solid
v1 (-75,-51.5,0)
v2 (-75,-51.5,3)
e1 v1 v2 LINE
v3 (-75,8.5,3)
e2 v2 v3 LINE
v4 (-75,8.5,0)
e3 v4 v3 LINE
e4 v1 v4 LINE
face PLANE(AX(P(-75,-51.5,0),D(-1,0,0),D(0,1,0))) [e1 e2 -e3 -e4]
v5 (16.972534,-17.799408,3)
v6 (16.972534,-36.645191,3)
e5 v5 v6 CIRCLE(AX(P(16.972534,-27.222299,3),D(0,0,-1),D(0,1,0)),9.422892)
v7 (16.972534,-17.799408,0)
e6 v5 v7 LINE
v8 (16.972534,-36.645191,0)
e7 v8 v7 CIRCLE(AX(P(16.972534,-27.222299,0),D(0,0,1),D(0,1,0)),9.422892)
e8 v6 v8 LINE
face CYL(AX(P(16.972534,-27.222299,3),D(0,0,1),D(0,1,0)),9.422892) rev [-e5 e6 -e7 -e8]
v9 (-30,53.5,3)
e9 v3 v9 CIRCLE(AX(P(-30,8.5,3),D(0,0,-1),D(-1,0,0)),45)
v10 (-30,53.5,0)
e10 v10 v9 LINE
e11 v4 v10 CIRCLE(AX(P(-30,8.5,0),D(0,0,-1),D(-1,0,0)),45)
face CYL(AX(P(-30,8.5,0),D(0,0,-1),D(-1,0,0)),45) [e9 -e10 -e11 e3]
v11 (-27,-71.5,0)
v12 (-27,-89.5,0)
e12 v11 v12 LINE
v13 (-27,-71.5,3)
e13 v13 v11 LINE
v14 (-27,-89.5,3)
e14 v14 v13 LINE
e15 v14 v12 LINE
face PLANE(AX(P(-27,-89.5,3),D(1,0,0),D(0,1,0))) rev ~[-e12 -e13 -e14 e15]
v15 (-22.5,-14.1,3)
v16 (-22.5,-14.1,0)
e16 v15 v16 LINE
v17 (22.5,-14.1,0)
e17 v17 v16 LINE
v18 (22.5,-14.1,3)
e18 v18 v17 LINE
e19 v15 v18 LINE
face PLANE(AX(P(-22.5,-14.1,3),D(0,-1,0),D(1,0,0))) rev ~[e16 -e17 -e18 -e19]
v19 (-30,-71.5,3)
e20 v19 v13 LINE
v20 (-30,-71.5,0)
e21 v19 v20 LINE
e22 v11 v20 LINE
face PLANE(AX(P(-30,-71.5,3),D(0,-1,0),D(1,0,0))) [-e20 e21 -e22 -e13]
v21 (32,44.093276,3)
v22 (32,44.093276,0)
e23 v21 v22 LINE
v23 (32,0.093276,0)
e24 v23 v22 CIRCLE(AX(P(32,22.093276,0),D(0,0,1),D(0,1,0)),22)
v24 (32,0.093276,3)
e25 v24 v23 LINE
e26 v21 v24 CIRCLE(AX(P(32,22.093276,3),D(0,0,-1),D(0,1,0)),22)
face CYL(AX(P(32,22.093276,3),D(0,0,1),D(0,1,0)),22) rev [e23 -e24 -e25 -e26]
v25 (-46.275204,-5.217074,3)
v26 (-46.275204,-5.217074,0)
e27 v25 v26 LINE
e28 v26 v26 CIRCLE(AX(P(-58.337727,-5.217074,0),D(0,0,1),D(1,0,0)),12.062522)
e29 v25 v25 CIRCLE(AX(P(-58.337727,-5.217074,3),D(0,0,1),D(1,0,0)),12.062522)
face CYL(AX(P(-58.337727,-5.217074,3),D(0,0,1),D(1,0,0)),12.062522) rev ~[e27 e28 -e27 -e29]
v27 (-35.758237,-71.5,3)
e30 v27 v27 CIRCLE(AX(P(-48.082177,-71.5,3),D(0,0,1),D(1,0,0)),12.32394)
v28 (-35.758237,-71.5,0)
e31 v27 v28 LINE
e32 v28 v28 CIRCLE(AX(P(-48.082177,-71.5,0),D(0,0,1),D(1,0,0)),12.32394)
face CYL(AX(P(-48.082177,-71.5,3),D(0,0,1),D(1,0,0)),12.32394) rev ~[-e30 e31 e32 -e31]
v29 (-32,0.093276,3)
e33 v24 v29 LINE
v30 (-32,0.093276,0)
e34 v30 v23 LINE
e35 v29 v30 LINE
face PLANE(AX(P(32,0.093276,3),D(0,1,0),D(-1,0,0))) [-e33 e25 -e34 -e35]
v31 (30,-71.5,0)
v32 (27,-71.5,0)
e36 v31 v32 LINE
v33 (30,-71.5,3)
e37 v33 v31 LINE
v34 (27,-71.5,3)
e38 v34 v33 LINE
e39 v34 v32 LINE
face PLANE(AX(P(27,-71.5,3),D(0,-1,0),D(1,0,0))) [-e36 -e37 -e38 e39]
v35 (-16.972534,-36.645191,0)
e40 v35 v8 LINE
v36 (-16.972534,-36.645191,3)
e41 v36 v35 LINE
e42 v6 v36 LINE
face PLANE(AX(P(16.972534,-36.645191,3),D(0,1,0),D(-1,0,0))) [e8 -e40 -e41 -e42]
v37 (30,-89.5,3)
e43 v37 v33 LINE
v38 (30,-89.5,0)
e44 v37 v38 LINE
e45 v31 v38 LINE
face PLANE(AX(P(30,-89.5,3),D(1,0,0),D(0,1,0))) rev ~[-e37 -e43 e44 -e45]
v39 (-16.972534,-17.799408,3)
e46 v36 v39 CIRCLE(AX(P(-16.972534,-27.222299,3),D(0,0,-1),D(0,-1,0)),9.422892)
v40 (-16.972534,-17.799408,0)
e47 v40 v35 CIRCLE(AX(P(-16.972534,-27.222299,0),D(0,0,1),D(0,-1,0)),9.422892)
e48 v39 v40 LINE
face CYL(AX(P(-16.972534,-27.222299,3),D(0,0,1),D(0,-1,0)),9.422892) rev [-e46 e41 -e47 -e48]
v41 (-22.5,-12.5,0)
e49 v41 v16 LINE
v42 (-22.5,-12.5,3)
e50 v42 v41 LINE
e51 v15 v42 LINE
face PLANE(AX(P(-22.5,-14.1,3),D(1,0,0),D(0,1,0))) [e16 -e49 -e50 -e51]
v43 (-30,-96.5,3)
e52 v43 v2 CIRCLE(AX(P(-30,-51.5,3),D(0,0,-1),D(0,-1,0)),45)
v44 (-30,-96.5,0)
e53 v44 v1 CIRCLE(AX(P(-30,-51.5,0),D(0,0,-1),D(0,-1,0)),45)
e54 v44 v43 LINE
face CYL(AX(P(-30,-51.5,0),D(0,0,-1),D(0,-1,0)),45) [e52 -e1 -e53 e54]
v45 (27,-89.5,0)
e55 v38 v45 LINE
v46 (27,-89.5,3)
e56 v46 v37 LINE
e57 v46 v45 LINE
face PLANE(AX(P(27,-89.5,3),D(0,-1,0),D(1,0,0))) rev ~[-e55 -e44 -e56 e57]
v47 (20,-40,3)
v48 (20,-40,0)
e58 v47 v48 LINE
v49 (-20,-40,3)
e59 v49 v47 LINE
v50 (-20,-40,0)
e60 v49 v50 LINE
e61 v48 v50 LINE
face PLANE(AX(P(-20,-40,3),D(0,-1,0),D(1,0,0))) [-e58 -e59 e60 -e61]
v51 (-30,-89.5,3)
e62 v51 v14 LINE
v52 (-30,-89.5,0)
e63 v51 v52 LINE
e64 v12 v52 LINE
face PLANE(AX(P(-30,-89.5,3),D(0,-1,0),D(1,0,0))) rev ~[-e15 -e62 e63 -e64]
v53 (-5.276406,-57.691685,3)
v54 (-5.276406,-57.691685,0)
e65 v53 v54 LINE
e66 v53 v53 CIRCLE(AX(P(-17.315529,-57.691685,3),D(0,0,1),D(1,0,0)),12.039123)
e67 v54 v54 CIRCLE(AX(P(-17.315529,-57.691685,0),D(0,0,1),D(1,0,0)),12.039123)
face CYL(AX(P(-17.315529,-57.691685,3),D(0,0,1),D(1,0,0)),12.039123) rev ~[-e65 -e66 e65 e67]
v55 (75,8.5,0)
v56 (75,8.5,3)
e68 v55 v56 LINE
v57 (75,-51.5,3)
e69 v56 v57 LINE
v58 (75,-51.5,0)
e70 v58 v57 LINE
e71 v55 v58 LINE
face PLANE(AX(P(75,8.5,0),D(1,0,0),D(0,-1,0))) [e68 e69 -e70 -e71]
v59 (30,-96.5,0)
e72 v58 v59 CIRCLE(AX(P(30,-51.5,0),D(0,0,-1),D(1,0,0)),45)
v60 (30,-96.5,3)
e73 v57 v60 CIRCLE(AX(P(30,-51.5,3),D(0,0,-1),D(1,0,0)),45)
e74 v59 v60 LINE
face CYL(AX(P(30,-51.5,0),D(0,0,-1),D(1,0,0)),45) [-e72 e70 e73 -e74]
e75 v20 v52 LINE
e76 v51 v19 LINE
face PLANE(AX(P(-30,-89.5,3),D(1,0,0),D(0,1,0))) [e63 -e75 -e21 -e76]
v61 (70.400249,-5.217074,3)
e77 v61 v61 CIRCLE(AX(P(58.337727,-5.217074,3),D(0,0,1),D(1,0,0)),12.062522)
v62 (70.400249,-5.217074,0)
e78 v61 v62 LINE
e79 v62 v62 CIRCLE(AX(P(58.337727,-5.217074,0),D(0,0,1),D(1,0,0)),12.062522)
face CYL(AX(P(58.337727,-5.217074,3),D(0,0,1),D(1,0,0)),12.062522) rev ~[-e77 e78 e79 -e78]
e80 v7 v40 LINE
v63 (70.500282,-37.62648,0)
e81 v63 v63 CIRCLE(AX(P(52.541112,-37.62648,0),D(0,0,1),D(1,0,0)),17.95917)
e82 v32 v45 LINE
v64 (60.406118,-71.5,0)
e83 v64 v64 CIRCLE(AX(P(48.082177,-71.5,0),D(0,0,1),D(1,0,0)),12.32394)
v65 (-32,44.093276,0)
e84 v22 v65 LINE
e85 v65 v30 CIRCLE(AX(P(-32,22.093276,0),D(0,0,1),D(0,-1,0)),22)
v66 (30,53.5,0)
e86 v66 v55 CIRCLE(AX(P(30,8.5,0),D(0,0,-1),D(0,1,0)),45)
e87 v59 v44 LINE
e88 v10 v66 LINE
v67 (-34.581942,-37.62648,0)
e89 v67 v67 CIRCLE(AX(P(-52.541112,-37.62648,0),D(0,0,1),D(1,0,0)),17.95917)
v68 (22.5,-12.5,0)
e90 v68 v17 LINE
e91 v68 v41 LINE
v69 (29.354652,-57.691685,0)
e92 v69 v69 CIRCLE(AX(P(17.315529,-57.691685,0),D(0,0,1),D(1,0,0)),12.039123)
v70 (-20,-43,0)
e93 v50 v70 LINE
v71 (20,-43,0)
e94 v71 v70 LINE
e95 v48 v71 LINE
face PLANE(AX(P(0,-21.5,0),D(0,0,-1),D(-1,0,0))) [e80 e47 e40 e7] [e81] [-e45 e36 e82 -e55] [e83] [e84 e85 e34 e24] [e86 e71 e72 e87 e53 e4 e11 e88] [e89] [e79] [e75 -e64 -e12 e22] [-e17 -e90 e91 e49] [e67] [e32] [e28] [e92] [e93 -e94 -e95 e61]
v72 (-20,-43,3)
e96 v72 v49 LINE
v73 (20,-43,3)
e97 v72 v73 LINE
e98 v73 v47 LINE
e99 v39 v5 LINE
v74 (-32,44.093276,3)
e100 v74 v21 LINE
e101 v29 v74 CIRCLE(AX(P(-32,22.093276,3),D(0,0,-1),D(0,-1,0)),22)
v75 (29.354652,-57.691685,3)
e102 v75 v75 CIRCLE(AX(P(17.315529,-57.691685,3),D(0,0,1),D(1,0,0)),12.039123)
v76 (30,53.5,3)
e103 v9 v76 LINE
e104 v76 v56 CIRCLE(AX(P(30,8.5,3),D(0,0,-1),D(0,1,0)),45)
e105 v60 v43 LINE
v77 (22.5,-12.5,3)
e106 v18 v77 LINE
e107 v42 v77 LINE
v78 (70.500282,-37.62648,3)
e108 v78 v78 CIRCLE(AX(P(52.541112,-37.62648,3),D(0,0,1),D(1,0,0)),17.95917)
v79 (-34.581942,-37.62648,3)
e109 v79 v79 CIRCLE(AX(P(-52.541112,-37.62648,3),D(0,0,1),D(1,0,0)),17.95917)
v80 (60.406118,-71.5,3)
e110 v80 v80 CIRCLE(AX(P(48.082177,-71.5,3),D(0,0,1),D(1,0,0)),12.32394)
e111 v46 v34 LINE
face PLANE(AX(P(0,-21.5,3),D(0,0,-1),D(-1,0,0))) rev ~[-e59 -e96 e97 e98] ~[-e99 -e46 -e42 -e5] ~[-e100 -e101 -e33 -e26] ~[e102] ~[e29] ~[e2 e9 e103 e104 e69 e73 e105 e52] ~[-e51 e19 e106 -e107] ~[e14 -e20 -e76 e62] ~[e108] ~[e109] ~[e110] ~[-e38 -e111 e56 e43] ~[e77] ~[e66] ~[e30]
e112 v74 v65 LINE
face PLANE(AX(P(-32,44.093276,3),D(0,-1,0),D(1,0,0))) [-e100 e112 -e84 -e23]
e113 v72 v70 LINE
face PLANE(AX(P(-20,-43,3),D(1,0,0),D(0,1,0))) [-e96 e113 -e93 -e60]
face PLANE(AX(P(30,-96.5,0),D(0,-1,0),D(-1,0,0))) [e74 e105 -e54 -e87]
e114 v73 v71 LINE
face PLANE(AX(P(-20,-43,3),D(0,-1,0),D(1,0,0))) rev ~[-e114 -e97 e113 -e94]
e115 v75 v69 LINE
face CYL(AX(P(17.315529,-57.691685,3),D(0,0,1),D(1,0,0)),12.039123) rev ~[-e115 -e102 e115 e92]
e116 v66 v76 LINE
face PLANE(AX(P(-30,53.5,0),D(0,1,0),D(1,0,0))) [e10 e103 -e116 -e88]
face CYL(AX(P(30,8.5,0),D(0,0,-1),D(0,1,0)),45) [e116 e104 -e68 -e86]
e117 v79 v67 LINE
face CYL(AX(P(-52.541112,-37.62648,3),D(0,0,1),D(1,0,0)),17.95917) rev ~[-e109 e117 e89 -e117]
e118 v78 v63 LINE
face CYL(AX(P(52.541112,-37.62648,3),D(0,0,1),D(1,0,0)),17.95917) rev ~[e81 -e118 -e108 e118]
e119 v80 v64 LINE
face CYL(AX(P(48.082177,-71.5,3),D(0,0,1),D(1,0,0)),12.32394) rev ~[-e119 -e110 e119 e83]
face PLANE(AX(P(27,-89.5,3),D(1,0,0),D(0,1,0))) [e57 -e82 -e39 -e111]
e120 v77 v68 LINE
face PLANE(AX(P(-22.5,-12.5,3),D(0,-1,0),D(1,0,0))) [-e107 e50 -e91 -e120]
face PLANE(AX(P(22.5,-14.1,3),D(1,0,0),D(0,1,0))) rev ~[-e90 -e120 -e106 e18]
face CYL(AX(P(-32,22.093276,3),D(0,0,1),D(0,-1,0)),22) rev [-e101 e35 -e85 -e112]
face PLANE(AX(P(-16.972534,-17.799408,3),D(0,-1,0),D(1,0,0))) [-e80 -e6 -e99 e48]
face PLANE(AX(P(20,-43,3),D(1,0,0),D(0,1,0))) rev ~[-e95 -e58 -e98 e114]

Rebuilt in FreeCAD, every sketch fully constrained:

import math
import FreeCAD as App
import Part
import Sketcher
Q = App.Units.Quantity

doc = App.newDocument("Part")
body = doc.addObject("PartDesign::Body", "Body")

# Sketch on XY plane
sketch1 = doc.addObject("Sketcher::SketchObject", "Sketch")
body.addObject(sketch1)
sketch1.AttachmentSupport = (doc.XY_Plane, [""])
sketch1.MapMode = "FlatFace"
sketch1.addGeometry(Part.LineSegment(App.Vector(30, 54, 0), App.Vector(-30, 54, 0)), False)
sketch1.addGeometry(Part.ArcOfCircle(Part.Circle(App.Vector(-30, 8, 0), App.Vector(0, 0, 1), 45), math.radians(90), math.radians(180)), False)
sketch1.addGeometry(Part.LineSegment(App.Vector(-75, 8, 0), App.Vector(-75, -52, 0)), False)
sketch1.addGeometry(Part.ArcOfCircle(Part.Circle(App.Vector(-30, -51, 0), App.Vector(0, 0, 1), 45), math.radians(-180), math.radians(-90)), False)
sketch1.addGeometry(Part.LineSegment(App.Vector(-30, -96, 0), App.Vector(30, -96, 0)), False)
sketch1.addGeometry(Part.ArcOfCircle(Part.Circle(App.Vector(30, -51, 0), App.Vector(0, 0, 1), 45), math.radians(-90), math.radians(0)), False)
sketch1.addGeometry(Part.LineSegment(App.Vector(75, -52, 0), App.Vector(75, 8, 0)), False)
sketch1.addGeometry(Part.ArcOfCircle(Part.Circle(App.Vector(30, 8, 0), App.Vector(0, 0, 1), 45), math.radians(0), math.radians(90)), False)
sketch1.addConstraint(Sketcher.Constraint("Tangent", 0, 2, 1, 1))
sketch1.addConstraint(Sketcher.Constraint("Tangent", 1, 2, 2, 1))
sketch1.addConstraint(Sketcher.Constraint("Tangent", 2, 2, 3, 1))
sketch1.addConstraint(Sketcher.Constraint("Tangent", 3, 2, 4, 1))
sketch1.addConstraint(Sketcher.Constraint("Tangent", 4, 2, 5, 1))
sketch1.addConstraint(Sketcher.Constraint("Tangent", 5, 2, 6, 1))
sketch1.addConstraint(Sketcher.Constraint("Tangent", 6, 2, 7, 1))
sketch1.addConstraint(Sketcher.Constraint("Tangent", 7, 2, 0, 1))
sketch1.addConstraint(Sketcher.Constraint("Horizontal", 0))
sketch1.addConstraint(Sketcher.Constraint("Vertical", 2))
sketch1.addConstraint(Sketcher.Constraint("Horizontal", 4))
sketch1.addConstraint(Sketcher.Constraint("Vertical", 6))
sketch1.addConstraint(Sketcher.Constraint("Equal", 1, 3))
sketch1.addConstraint(Sketcher.Constraint("Equal", 3, 5))
sketch1.addConstraint(Sketcher.Constraint("Equal", 5, 7))
sketch1.addConstraint(Sketcher.Constraint("Equal", 4, 2))
sketch1.addConstraint(Sketcher.Constraint("Radius", 1, Q("45 mm")))
sketch1.addConstraint(Sketcher.Constraint("DistanceX", 0, 2, 0, 1, Q("60 mm")))
sketch1.addConstraint(Sketcher.Constraint("DistanceX", 1, 3, -1, 1, Q("30 mm")))
sketch1.addConstraint(Sketcher.Constraint("DistanceY", -1, 1, 1, 3, Q("8.5 mm")))
pad1 = doc.addObject("PartDesign::Pad", "Pad")
body.addObject(pad1)
pad1.Profile = sketch1
pad1.Length = 3

# Sketch on XY plane
sketch2 = doc.addObject("Sketcher::SketchObject", "Sketch001")
body.addObject(sketch2)
sketch2.AttachmentSupport = (doc.XY_Plane, [""])
sketch2.MapMode = "FlatFace"
sketch2.AttachmentOffset = App.Placement(App.Vector(0, 0, 3), App.Rotation())
sketch2.addGeometry(Part.Circle(App.Vector(-17.3, -57.7, 0), App.Vector(0, 0, 1), 12), False)
sketch2.addGeometry(Part.Circle(App.Vector(-48.1, -71.5, 0), App.Vector(0, 0, 1), 12.3), False)
sketch2.addGeometry(Part.Circle(App.Vector(48.1, -71.5, 0), App.Vector(0, 0, 1), 12.3), False)
sketch2.addGeometry(Part.Circle(App.Vector(17.3, -57.7, 0), App.Vector(0, 0, 1), 12), False)
sketch2.addGeometry(Part.Circle(App.Vector(-58.3, -5.2, 0), App.Vector(0, 0, 1), 12.1), False)
sketch2.addGeometry(Part.Circle(App.Vector(-52.5, -37.6, 0), App.Vector(0, 0, 1), 18), False)
sketch2.addGeometry(Part.Circle(App.Vector(52.5, -37.6, 0), App.Vector(0, 0, 1), 18), False)
sketch2.addGeometry(Part.Circle(App.Vector(58.3, -5.2, 0), App.Vector(0, 0, 1), 12.1), False)
sketch2.addGeometry(Part.LineSegment(App.Vector(-30, -71.5, 0), App.Vector(-30, -89.5, 0)), False)
sketch2.addGeometry(Part.LineSegment(App.Vector(-30, -89.5, 0), App.Vector(-27, -89.5, 0)), False)
sketch2.addGeometry(Part.LineSegment(App.Vector(-27, -89.5, 0), App.Vector(-27, -71.5, 0)), False)
sketch2.addGeometry(Part.LineSegment(App.Vector(-27, -71.5, 0), App.Vector(-30, -71.5, 0)), False)
sketch2.addGeometry(Part.LineSegment(App.Vector(27, -71.5, 0), App.Vector(27, -89.5, 0)), False)
sketch2.addGeometry(Part.LineSegment(App.Vector(27, -89.5, 0), App.Vector(30, -89.5, 0)), False)
sketch2.addGeometry(Part.LineSegment(App.Vector(30, -89.5, 0), App.Vector(30, -71.5, 0)), False)
sketch2.addGeometry(Part.LineSegment(App.Vector(30, -71.5, 0), App.Vector(27, -71.5, 0)), False)
sketch2.addGeometry(Part.LineSegment(App.Vector(-22.5, -12.5, 0), App.Vector(-22.5, -14.1, 0)), False)
sketch2.addGeometry(Part.LineSegment(App.Vector(-22.5, -14.1, 0), App.Vector(22.5, -14.1, 0)), False)
sketch2.addGeometry(Part.LineSegment(App.Vector(22.5, -14.1, 0), App.Vector(22.5, -12.5, 0)), False)
sketch2.addGeometry(Part.LineSegment(App.Vector(22.5, -12.5, 0), App.Vector(-22.5, -12.5, 0)), False)
sketch2.addGeometry(Part.LineSegment(App.Vector(-20, -40, 0), App.Vector(-20, -43, 0)), False)
sketch2.addGeometry(Part.LineSegment(App.Vector(-20, -43, 0), App.Vector(20, -43, 0)), False)
sketch2.addGeometry(Part.LineSegment(App.Vector(20, -43, 0), App.Vector(20, -40, 0)), False)
sketch2.addGeometry(Part.LineSegment(App.Vector(20, -40, 0), App.Vector(-20, -40, 0)), False)
sketch2.addGeometry(Part.LineSegment(App.Vector(32, 44.1, 0), App.Vector(-32, 44.1, 0)), False)
sketch2.addGeometry(Part.ArcOfCircle(Part.Circle(App.Vector(-32, 22.1, 0), App.Vector(0, 0, 1), 22), math.radians(90), math.radians(270)), False)
sketch2.addGeometry(Part.LineSegment(App.Vector(-32, 0.1, 0), App.Vector(32, 0.1, 0)), False)
sketch2.addGeometry(Part.ArcOfCircle(Part.Circle(App.Vector(32, 22.1, 0), App.Vector(0, 0, 1), 22), math.radians(-90), math.radians(90)), False)
sketch2.addGeometry(Part.LineSegment(App.Vector(17, -17.8, 0), App.Vector(-17, -17.8, 0)), False)
sketch2.addGeometry(Part.ArcOfCircle(Part.Circle(App.Vector(-17, -27.2, 0), App.Vector(0, 0, 1), 9.4), math.radians(90), math.radians(270)), False)
sketch2.addGeometry(Part.LineSegment(App.Vector(-17, -36.6, 0), App.Vector(17, -36.6, 0)), False)
sketch2.addGeometry(Part.ArcOfCircle(Part.Circle(App.Vector(17, -27.2, 0), App.Vector(0, 0, 1), 9.4), math.radians(-90), math.radians(90)), False)
sketch2.addConstraint(Sketcher.Constraint("Coincident", 8, 2, 9, 1))
sketch2.addConstraint(Sketcher.Constraint("Coincident", 9, 2, 10, 1))
sketch2.addConstraint(Sketcher.Constraint("Coincident", 10, 2, 11, 1))
sketch2.addConstraint(Sketcher.Constraint("Coincident", 11, 2, 8, 1))
sketch2.addConstraint(Sketcher.Constraint("Coincident", 12, 2, 13, 1))
sketch2.addConstraint(Sketcher.Constraint("Coincident", 13, 2, 14, 1))
sketch2.addConstraint(Sketcher.Constraint("Coincident", 14, 2, 15, 1))
sketch2.addConstraint(Sketcher.Constraint("Coincident", 15, 2, 12, 1))
sketch2.addConstraint(Sketcher.Constraint("Coincident", 16, 2, 17, 1))
sketch2.addConstraint(Sketcher.Constraint("Coincident", 17, 2, 18, 1))
sketch2.addConstraint(Sketcher.Constraint("Coincident", 18, 2, 19, 1))
sketch2.addConstraint(Sketcher.Constraint("Coincident", 19, 2, 16, 1))
sketch2.addConstraint(Sketcher.Constraint("Coincident", 20, 2, 21, 1))
sketch2.addConstraint(Sketcher.Constraint("Coincident", 21, 2, 22, 1))
sketch2.addConstraint(Sketcher.Constraint("Coincident", 22, 2, 23, 1))
sketch2.addConstraint(Sketcher.Constraint("Coincident", 23, 2, 20, 1))
sketch2.addConstraint(Sketcher.Constraint("Tangent", 24, 2, 25, 1))
sketch2.addConstraint(Sketcher.Constraint("Tangent", 25, 2, 26, 1))
sketch2.addConstraint(Sketcher.Constraint("Tangent", 26, 2, 27, 1))
sketch2.addConstraint(Sketcher.Constraint("Tangent", 27, 2, 24, 1))
sketch2.addConstraint(Sketcher.Constraint("Tangent", 28, 2, 29, 1))
sketch2.addConstraint(Sketcher.Constraint("Tangent", 29, 2, 30, 1))
sketch2.addConstraint(Sketcher.Constraint("Tangent", 30, 2, 31, 1))
sketch2.addConstraint(Sketcher.Constraint("Tangent", 31, 2, 28, 1))
sketch2.addConstraint(Sketcher.Constraint("Vertical", 8))
sketch2.addConstraint(Sketcher.Constraint("Horizontal", 9))
sketch2.addConstraint(Sketcher.Constraint("Vertical", 10))
sketch2.addConstraint(Sketcher.Constraint("Horizontal", 11))
sketch2.addConstraint(Sketcher.Constraint("Vertical", 12))
sketch2.addConstraint(Sketcher.Constraint("Horizontal", 13))
sketch2.addConstraint(Sketcher.Constraint("Vertical", 14))
sketch2.addConstraint(Sketcher.Constraint("Horizontal", 15))
sketch2.addConstraint(Sketcher.Constraint("Vertical", 16))
sketch2.addConstraint(Sketcher.Constraint("Horizontal", 17))
sketch2.addConstraint(Sketcher.Constraint("Vertical", 18))
sketch2.addConstraint(Sketcher.Constraint("Horizontal", 19))
sketch2.addConstraint(Sketcher.Constraint("Vertical", 20))
sketch2.addConstraint(Sketcher.Constraint("Horizontal", 21))
sketch2.addConstraint(Sketcher.Constraint("Vertical", 22))
sketch2.addConstraint(Sketcher.Constraint("Horizontal", 23))
sketch2.addConstraint(Sketcher.Constraint("Horizontal", 24))
sketch2.addConstraint(Sketcher.Constraint("Horizontal", 26))
sketch2.addConstraint(Sketcher.Constraint("Horizontal", 28))
sketch2.addConstraint(Sketcher.Constraint("Horizontal", 30))
sketch2.addConstraint(Sketcher.Constraint("Equal", 1, 2))
sketch2.addConstraint(Sketcher.Constraint("Equal", 0, 3))
sketch2.addConstraint(Sketcher.Constraint("Equal", 5, 6))
sketch2.addConstraint(Sketcher.Constraint("Equal", 4, 7))
sketch2.addConstraint(Sketcher.Constraint("Symmetric", 1, 3, 2, 3, -2))
sketch2.addConstraint(Sketcher.Constraint("Symmetric", 0, 3, 3, 3, -2))
sketch2.addConstraint(Sketcher.Constraint("Symmetric", 5, 3, 6, 3, -2))
sketch2.addConstraint(Sketcher.Constraint("Symmetric", 4, 3, 7, 3, -2))
sketch2.addConstraint(Sketcher.Constraint("Symmetric", 9, 2, 12, 2, -2))
sketch2.addConstraint(Sketcher.Constraint("Symmetric", 11, 2, 14, 2, -2))
sketch2.addConstraint(Sketcher.Constraint("Horizontal", 2, 3, 10, 2))
sketch2.addConstraint(Sketcher.Constraint("Equal", 15, 20))
sketch2.addConstraint(Sketcher.Constraint("Radius", 25, Q("22 mm")))
sketch2.addConstraint(Sketcher.Constraint("DistanceX", 9, 1, 9, 2, Q("3 mm")))
sketch2.addConstraint(Sketcher.Constraint("DistanceX", 17, 1, 17, 2, Q("45 mm")))
sketch2.addConstraint(Sketcher.Constraint("DistanceX", 21, 1, 21, 2, Q("40 mm")))
sketch2.addConstraint(Sketcher.Constraint("DistanceX", 24, 2, 24, 1, Q("64 mm")))
sketch2.addConstraint(Sketcher.Constraint("DistanceY", 8, 2, 8, 1, Q("18 mm")))
sketch2.addConstraint(Sketcher.Constraint("DistanceY", 16, 2, 16, 1, Q("1.6 mm")))
sketch2.addConstraint(Sketcher.Constraint("DistanceX", 25, 3, -1, 1, Q("32 mm")))
sketch2.addConstraint(Sketcher.Constraint("DistanceX", 8, 2, -1, 1, Q("30 mm")))
sketch2.addConstraint(Sketcher.Constraint("DistanceX", 20, 2, -1, 1, Q("20 mm")))
sketch2.addConstraint(Sketcher.Constraint("DistanceY", 20, 2, -1, 1, Q("43 mm")))
sketch2.addConstraint(Sketcher.Constraint("DistanceY", 1, 3, -1, 1, Q("71.5 mm")))
sketch2.addConstraint(Sketcher.Constraint("DistanceX", 16, 2, -1, 1, Q("22.5 mm")))
sketch2.addConstraint(Sketcher.Constraint("DistanceY", 16, 2, -1, 1, Q("14.1 mm")))
sketch2.addConstraint(Sketcher.Constraint("Diameter", 1, Q("24.647881 mm")))
sketch2.addConstraint(Sketcher.Constraint("Diameter", 5, Q("35.918341 mm")))
sketch2.addConstraint(Sketcher.Constraint("Radius", 29, Q("9.422892 mm")))
sketch2.addConstraint(Sketcher.Constraint("Diameter", 0, Q("24.078246 mm")))
sketch2.addConstraint(Sketcher.Constraint("Diameter", 4, Q("24.125045 mm")))
sketch2.addConstraint(Sketcher.Constraint("DistanceX", 28, 2, 28, 1, Q("33.945068 mm")))
sketch2.addConstraint(Sketcher.Constraint("DistanceY", 29, 3, -1, 1, Q("27.222299 mm")))
sketch2.addConstraint(Sketcher.Constraint("DistanceX", 0, 3, -1, 1, Q("17.315529 mm")))
sketch2.addConstraint(Sketcher.Constraint("DistanceX", 5, 3, -1, 1, Q("52.541112 mm")))
sketch2.addConstraint(Sketcher.Constraint("DistanceY", 5, 3, -1, 1, Q("37.62648 mm")))
sketch2.addConstraint(Sketcher.Constraint("DistanceX", 1, 3, 0, 3, Q("30.766648 mm")))
sketch2.addConstraint(Sketcher.Constraint("DistanceY", 0, 3, 4, 3, Q("52.474612 mm")))
sketch2.addConstraint(Sketcher.Constraint("DistanceX", 4, 3, 1, 3, Q("10.255549 mm")))
sketch2.addConstraint(Sketcher.Constraint("DistanceY", 4, 3, 25, 3, Q("27.31035 mm")))
sketch2.addConstraint(Sketcher.Constraint("DistanceY", 0, 3, -1, 1, Q("57.691685 mm")))
sketch2.addConstraint(Sketcher.Constraint("DistanceX", 29, 3, -1, 1, Q("16.972534 mm")))
pocket1 = doc.addObject("PartDesign::Pocket", "Pocket")
body.addObject(pocket1)
pocket1.Profile = sketch2
pocket1.Length = 10

doc.recompute()
